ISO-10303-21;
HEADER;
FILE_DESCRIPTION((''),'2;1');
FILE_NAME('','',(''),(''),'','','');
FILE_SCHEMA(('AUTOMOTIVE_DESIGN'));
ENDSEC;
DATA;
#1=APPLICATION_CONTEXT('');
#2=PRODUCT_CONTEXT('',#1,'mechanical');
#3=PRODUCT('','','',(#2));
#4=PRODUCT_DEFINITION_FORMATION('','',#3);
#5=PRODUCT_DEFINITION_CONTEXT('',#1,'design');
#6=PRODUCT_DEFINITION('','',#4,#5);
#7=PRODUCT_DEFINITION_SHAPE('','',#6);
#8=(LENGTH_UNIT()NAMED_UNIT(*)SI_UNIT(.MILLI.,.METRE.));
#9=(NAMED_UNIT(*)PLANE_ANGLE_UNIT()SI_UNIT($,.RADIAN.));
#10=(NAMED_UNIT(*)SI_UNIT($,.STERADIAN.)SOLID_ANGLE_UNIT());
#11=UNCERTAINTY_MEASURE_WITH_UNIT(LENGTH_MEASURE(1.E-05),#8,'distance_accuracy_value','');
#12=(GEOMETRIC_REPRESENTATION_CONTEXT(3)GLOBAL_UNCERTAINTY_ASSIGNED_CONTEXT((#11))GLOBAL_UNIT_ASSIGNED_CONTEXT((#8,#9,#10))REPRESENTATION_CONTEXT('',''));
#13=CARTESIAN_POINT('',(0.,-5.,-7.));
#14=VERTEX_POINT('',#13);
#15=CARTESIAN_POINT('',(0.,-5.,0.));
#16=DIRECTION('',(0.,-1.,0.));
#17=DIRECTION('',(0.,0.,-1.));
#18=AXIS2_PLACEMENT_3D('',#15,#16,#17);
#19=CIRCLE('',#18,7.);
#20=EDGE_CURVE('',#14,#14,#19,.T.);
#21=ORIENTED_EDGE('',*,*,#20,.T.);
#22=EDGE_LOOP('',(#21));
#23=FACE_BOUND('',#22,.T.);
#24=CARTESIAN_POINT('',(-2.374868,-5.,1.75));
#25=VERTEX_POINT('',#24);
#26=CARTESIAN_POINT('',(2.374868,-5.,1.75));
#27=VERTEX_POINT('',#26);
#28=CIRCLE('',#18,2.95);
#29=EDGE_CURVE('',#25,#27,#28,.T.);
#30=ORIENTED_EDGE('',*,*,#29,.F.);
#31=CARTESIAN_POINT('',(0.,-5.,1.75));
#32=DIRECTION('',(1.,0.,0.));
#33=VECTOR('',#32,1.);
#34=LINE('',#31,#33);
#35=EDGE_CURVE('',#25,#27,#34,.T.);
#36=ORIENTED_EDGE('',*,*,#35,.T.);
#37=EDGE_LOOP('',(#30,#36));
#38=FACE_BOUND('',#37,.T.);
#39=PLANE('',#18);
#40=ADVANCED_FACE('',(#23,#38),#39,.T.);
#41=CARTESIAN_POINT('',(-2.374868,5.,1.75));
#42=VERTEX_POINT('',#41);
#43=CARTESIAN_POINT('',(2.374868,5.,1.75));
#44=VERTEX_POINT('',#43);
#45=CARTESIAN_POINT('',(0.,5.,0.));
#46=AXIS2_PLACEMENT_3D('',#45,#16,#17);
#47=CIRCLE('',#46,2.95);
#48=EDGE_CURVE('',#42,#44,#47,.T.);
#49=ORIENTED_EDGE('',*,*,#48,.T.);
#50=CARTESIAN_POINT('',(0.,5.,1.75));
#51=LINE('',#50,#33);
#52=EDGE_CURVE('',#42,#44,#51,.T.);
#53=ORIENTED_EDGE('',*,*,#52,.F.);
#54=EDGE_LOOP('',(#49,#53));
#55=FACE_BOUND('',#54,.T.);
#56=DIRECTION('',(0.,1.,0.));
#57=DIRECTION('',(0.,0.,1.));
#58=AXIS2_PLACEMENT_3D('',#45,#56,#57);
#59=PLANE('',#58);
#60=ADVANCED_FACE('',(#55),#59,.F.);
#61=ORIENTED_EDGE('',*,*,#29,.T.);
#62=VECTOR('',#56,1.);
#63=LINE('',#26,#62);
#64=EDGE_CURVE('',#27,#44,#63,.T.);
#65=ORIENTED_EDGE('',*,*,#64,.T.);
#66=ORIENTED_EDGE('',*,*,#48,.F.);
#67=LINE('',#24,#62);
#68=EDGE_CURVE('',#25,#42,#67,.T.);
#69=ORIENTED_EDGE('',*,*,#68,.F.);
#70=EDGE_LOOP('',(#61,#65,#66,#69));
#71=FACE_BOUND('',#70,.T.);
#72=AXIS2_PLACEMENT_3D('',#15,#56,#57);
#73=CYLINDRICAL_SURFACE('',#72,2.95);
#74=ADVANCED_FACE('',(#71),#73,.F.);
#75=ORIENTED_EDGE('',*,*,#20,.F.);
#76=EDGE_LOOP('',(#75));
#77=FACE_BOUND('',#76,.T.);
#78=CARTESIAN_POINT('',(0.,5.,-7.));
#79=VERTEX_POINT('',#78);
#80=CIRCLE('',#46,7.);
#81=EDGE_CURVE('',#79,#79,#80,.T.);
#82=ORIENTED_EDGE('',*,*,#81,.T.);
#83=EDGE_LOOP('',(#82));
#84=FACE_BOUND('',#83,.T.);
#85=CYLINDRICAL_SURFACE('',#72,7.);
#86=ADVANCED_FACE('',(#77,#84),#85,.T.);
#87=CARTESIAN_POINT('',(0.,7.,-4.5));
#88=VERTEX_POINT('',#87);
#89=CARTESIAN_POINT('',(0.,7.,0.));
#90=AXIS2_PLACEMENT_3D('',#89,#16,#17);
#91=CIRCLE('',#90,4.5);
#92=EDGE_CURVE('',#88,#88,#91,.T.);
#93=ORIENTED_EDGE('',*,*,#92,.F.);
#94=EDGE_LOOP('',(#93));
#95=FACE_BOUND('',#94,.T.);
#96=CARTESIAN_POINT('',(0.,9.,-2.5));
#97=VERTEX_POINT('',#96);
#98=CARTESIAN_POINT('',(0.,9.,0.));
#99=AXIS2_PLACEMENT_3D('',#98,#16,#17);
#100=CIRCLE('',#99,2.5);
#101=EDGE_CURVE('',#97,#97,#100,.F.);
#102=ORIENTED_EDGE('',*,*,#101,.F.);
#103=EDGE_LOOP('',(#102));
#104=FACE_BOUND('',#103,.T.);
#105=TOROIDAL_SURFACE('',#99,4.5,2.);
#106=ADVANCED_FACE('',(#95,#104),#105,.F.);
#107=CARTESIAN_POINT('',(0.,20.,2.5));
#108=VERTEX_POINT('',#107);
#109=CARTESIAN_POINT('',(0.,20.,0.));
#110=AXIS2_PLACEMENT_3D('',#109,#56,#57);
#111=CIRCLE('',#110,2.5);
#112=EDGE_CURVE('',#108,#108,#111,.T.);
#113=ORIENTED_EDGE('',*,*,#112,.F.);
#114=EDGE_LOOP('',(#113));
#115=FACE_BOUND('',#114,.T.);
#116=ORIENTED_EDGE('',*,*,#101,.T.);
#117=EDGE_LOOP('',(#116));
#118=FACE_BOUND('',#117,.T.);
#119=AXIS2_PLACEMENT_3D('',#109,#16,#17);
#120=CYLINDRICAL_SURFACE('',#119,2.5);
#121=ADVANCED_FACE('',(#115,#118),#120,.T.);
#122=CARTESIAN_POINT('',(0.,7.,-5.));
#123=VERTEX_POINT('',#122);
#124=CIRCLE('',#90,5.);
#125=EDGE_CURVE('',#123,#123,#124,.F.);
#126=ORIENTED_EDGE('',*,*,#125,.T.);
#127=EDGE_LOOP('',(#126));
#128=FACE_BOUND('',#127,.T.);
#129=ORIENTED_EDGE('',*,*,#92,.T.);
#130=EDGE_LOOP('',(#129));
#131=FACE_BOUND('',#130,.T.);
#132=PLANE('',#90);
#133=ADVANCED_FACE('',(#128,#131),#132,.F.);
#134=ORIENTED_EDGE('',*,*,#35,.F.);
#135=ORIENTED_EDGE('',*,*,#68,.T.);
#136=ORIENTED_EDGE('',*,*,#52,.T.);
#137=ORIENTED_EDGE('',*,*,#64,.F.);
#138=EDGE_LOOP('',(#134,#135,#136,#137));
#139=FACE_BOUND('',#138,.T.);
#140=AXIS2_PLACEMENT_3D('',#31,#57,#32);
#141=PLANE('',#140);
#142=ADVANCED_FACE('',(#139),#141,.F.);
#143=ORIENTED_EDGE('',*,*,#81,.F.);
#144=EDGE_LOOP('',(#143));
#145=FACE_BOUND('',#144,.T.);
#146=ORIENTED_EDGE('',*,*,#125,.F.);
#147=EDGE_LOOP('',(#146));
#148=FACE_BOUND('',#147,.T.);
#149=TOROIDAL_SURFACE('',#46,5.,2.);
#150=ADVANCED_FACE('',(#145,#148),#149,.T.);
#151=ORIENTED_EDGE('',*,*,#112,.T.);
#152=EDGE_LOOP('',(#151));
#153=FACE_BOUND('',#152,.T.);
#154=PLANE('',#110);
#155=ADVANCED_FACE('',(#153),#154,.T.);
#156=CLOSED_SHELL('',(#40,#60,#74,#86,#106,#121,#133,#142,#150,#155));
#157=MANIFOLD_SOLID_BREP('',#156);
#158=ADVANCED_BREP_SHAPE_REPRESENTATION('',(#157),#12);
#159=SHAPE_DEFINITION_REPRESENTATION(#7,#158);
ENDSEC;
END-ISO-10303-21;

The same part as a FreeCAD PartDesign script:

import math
import FreeCAD as App
import Part
import Sketcher

V = App.Vector
Q = App.Units.Quantity


def edges_at(feature, points):
    """Names of the edges that pass closest to the given points."""
    edges = feature.Shape.Edges
    near = lambda p: min(range(len(edges)), key=lambda i: edges[i].distToShape(Part.Vertex(*p))[0])
    return sorted({f"Edge{near(p) + 1}" for p in points})

doc = App.newDocument("Part")
body = doc.addObject("PartDesign::Body", "Body")

sketch1 = body.newObject("Sketcher::SketchObject", "Sketch")
sketch1.AttachmentSupport = (doc.getObject("XZ_Plane"), [""])
sketch1.MapMode = "FlatFace"
sketch1.addGeometry([
    Part.Circle(V(0, 0, 0), V(0, 0, 1), 12.5),
    Part.Circle(V(0, -7.5, 0), V(0, 0, 1), 2),
    Part.Circle(V(-7.5, 0, 0), V(0, 0, 1), 2),
    Part.Circle(V(7.5, 0, 0), V(0, 0, 1), 2),
    Part.Circle(V(0, 7.5, 0), V(0, 0, 1), 2),
], False)
sketch1.addConstraint([
    Sketcher.Constraint("Coincident", 0, 3, -1, 1),
    Sketcher.Constraint("Equal", 1, 2),
    Sketcher.Constraint("Equal", 2, 3),
    Sketcher.Constraint("Equal", 3, 4),
    Sketcher.Constraint("Symmetric", 2, 3, 3, 3, -1, 1),
    Sketcher.Constraint("Symmetric", 1, 3, 4, 3, -1, 1),
    Sketcher.Constraint("PointOnObject", 1, 3, -2),
    Sketcher.Constraint("PointOnObject", 2, 3, -1),
    Sketcher.Constraint("Diameter", 0, Q("25 mm")),
    Sketcher.Constraint("Diameter", 1, Q("4 mm")),
    Sketcher.Constraint("DistanceX", 2, 3, 3, 3, Q("15 mm")),
    Sketcher.Constraint("DistanceY", 1, 3, 4, 3, Q("15 mm")),
])
pad1 = body.newObject("PartDesign::Pad", "Pad")
pad1.Profile = sketch1
pad1.Length = 5
pad1.Reversed = True

sketch2 = body.newObject("Sketcher::SketchObject", "Sketch001")
sketch2.AttachmentSupport = (doc.getObject("XZ_Plane"), [""])
sketch2.MapMode = "FlatFace"
sketch2.AttachmentOffset = App.Placement(V(0, 0, -5), App.Rotation())
sketch2.addGeometry(Part.Circle(V(0, 0, 0), V(0, 0, 1), 2.5), False)
sketch2.addConstraint([
    Sketcher.Constraint("Coincident", 0, 3, -1, 1),
    Sketcher.Constraint("Diameter", 0, Q("5 mm")),
])
pad2 = body.newObject("PartDesign::Pad", "Pad001")
pad2.Profile = sketch2
pad2.Length = 15
pad2.Reversed = True

sketch3 = body.newObject("Sketcher::SketchObject", "Sketch002")
sketch3.AttachmentSupport = (doc.getObject("XZ_Plane"), [""])
sketch3.MapMode = "FlatFace"
sketch3.addGeometry(Part.Circle(V(0, 0, 0), V(0, 0, 1), 5), False)
sketch3.addConstraint([
    Sketcher.Constraint("Coincident", 0, 3, -1, 1),
    Sketcher.Constraint("Diameter", 0, Q("10 mm")),
])
pocket1 = body.newObject("PartDesign::Pocket", "Pocket")
pocket1.Profile = sketch3
pocket1.Length = 2

sketch4 = body.newObject("Sketcher::SketchObject", "Sketch003")
sketch4.AttachmentSupport = (doc.getObject("XZ_Plane"), [""])
sketch4.MapMode = "FlatFace"
sketch4.AttachmentOffset = App.Placement(V(0, 0, -5), App.Rotation())
sketch4.addGeometry(Part.Circle(V(0, 0, 0), V(0, 0, 1), 12.5), False)
sketch4.addConstraint([
    Sketcher.Constraint("Coincident", 0, 3, -1, 1),
    Sketcher.Constraint("Diameter", 0, Q("25 mm")),
])
pocket2 = body.newObject("PartDesign::Pocket", "Pocket001")
pocket2.Profile = sketch4
pocket2.Type = "ThroughAll"
pocket2.Reversed = True

sketch5 = body.newObject("Sketcher::SketchObject", "Sketch004")
sketch5.AttachmentSupport = (doc.getObject("XZ_Plane"), [""])
sketch5.MapMode = "FlatFace"
sketch5.AttachmentOffset = App.Placement(V(0, 0, -5), App.Rotation())
sketch5.addGeometry([
    Part.Circle(V(0, 0, 0), V(0, 0, 1), 7),
    Part.ArcOfCircle(Part.Circle(V(0, 0, 0), V(0, 0, 1), 2.95), math.radians(143.614132), math.radians(396.385868)),
    Part.LineSegment(V(-2.374868, 1.75, 0), V(2.374868, 1.75, 0)),
], False)
sketch5.addConstraint([
    Sketcher.Constraint("Coincident", 1, 1, 2, 1),
    Sketcher.Constraint("Coincident", 2, 2, 1, 2),
    Sketcher.Constraint("Horizontal", 2),
    Sketcher.Constraint("Coincident", 0, 3, -1, 1),
    Sketcher.Constraint("Coincident", 1, 3, -1, 1),
    Sketcher.Constraint("Diameter", 0, Q("14 mm")),
    Sketcher.Constraint("Radius", 1, Q("2.95 mm")),
    Sketcher.Constraint("DistanceY", -1, 1, 1, 1, Q("1.75 mm")),
])
pad3 = body.newObject("PartDesign::Pad", "Pad002")
pad3.Profile = sketch5
pad3.Length = 10

sketch6 = body.newObject("Sketcher::SketchObject", "Sketch005")
sketch6.AttachmentSupport = (doc.getObject("XZ_Plane"), [""])
sketch6.MapMode = "FlatFace"
sketch6.AttachmentOffset = App.Placement(V(0, 0, -5), App.Rotation())
sketch6.addGeometry(Part.Circle(V(0, 0, 0), V(0, 0, 1), 7), False)
sketch6.addConstraint([
    Sketcher.Constraint("Coincident", 0, 3, -1, 1),
    Sketcher.Constraint("Diameter", 0, Q("14 mm")),
])
pad4 = body.newObject("PartDesign::Pad", "Pad003")
pad4.Profile = sketch6
pad4.Length = 2
pad4.Reversed = True
doc.recompute()

fillet = body.newObject("PartDesign::Fillet", "Fillet")
fillet.Base = (pad4, edges_at(pad4, [(0, 7, -2.5)]))
fillet.Radius = 2
doc.recompute()

fillet2 = body.newObject("PartDesign::Fillet", "Fillet001")
fillet2.Base = (fillet, edges_at(fillet, [(0, 7, 7)]))
fillet2.Radius = 2

doc.recompute()
